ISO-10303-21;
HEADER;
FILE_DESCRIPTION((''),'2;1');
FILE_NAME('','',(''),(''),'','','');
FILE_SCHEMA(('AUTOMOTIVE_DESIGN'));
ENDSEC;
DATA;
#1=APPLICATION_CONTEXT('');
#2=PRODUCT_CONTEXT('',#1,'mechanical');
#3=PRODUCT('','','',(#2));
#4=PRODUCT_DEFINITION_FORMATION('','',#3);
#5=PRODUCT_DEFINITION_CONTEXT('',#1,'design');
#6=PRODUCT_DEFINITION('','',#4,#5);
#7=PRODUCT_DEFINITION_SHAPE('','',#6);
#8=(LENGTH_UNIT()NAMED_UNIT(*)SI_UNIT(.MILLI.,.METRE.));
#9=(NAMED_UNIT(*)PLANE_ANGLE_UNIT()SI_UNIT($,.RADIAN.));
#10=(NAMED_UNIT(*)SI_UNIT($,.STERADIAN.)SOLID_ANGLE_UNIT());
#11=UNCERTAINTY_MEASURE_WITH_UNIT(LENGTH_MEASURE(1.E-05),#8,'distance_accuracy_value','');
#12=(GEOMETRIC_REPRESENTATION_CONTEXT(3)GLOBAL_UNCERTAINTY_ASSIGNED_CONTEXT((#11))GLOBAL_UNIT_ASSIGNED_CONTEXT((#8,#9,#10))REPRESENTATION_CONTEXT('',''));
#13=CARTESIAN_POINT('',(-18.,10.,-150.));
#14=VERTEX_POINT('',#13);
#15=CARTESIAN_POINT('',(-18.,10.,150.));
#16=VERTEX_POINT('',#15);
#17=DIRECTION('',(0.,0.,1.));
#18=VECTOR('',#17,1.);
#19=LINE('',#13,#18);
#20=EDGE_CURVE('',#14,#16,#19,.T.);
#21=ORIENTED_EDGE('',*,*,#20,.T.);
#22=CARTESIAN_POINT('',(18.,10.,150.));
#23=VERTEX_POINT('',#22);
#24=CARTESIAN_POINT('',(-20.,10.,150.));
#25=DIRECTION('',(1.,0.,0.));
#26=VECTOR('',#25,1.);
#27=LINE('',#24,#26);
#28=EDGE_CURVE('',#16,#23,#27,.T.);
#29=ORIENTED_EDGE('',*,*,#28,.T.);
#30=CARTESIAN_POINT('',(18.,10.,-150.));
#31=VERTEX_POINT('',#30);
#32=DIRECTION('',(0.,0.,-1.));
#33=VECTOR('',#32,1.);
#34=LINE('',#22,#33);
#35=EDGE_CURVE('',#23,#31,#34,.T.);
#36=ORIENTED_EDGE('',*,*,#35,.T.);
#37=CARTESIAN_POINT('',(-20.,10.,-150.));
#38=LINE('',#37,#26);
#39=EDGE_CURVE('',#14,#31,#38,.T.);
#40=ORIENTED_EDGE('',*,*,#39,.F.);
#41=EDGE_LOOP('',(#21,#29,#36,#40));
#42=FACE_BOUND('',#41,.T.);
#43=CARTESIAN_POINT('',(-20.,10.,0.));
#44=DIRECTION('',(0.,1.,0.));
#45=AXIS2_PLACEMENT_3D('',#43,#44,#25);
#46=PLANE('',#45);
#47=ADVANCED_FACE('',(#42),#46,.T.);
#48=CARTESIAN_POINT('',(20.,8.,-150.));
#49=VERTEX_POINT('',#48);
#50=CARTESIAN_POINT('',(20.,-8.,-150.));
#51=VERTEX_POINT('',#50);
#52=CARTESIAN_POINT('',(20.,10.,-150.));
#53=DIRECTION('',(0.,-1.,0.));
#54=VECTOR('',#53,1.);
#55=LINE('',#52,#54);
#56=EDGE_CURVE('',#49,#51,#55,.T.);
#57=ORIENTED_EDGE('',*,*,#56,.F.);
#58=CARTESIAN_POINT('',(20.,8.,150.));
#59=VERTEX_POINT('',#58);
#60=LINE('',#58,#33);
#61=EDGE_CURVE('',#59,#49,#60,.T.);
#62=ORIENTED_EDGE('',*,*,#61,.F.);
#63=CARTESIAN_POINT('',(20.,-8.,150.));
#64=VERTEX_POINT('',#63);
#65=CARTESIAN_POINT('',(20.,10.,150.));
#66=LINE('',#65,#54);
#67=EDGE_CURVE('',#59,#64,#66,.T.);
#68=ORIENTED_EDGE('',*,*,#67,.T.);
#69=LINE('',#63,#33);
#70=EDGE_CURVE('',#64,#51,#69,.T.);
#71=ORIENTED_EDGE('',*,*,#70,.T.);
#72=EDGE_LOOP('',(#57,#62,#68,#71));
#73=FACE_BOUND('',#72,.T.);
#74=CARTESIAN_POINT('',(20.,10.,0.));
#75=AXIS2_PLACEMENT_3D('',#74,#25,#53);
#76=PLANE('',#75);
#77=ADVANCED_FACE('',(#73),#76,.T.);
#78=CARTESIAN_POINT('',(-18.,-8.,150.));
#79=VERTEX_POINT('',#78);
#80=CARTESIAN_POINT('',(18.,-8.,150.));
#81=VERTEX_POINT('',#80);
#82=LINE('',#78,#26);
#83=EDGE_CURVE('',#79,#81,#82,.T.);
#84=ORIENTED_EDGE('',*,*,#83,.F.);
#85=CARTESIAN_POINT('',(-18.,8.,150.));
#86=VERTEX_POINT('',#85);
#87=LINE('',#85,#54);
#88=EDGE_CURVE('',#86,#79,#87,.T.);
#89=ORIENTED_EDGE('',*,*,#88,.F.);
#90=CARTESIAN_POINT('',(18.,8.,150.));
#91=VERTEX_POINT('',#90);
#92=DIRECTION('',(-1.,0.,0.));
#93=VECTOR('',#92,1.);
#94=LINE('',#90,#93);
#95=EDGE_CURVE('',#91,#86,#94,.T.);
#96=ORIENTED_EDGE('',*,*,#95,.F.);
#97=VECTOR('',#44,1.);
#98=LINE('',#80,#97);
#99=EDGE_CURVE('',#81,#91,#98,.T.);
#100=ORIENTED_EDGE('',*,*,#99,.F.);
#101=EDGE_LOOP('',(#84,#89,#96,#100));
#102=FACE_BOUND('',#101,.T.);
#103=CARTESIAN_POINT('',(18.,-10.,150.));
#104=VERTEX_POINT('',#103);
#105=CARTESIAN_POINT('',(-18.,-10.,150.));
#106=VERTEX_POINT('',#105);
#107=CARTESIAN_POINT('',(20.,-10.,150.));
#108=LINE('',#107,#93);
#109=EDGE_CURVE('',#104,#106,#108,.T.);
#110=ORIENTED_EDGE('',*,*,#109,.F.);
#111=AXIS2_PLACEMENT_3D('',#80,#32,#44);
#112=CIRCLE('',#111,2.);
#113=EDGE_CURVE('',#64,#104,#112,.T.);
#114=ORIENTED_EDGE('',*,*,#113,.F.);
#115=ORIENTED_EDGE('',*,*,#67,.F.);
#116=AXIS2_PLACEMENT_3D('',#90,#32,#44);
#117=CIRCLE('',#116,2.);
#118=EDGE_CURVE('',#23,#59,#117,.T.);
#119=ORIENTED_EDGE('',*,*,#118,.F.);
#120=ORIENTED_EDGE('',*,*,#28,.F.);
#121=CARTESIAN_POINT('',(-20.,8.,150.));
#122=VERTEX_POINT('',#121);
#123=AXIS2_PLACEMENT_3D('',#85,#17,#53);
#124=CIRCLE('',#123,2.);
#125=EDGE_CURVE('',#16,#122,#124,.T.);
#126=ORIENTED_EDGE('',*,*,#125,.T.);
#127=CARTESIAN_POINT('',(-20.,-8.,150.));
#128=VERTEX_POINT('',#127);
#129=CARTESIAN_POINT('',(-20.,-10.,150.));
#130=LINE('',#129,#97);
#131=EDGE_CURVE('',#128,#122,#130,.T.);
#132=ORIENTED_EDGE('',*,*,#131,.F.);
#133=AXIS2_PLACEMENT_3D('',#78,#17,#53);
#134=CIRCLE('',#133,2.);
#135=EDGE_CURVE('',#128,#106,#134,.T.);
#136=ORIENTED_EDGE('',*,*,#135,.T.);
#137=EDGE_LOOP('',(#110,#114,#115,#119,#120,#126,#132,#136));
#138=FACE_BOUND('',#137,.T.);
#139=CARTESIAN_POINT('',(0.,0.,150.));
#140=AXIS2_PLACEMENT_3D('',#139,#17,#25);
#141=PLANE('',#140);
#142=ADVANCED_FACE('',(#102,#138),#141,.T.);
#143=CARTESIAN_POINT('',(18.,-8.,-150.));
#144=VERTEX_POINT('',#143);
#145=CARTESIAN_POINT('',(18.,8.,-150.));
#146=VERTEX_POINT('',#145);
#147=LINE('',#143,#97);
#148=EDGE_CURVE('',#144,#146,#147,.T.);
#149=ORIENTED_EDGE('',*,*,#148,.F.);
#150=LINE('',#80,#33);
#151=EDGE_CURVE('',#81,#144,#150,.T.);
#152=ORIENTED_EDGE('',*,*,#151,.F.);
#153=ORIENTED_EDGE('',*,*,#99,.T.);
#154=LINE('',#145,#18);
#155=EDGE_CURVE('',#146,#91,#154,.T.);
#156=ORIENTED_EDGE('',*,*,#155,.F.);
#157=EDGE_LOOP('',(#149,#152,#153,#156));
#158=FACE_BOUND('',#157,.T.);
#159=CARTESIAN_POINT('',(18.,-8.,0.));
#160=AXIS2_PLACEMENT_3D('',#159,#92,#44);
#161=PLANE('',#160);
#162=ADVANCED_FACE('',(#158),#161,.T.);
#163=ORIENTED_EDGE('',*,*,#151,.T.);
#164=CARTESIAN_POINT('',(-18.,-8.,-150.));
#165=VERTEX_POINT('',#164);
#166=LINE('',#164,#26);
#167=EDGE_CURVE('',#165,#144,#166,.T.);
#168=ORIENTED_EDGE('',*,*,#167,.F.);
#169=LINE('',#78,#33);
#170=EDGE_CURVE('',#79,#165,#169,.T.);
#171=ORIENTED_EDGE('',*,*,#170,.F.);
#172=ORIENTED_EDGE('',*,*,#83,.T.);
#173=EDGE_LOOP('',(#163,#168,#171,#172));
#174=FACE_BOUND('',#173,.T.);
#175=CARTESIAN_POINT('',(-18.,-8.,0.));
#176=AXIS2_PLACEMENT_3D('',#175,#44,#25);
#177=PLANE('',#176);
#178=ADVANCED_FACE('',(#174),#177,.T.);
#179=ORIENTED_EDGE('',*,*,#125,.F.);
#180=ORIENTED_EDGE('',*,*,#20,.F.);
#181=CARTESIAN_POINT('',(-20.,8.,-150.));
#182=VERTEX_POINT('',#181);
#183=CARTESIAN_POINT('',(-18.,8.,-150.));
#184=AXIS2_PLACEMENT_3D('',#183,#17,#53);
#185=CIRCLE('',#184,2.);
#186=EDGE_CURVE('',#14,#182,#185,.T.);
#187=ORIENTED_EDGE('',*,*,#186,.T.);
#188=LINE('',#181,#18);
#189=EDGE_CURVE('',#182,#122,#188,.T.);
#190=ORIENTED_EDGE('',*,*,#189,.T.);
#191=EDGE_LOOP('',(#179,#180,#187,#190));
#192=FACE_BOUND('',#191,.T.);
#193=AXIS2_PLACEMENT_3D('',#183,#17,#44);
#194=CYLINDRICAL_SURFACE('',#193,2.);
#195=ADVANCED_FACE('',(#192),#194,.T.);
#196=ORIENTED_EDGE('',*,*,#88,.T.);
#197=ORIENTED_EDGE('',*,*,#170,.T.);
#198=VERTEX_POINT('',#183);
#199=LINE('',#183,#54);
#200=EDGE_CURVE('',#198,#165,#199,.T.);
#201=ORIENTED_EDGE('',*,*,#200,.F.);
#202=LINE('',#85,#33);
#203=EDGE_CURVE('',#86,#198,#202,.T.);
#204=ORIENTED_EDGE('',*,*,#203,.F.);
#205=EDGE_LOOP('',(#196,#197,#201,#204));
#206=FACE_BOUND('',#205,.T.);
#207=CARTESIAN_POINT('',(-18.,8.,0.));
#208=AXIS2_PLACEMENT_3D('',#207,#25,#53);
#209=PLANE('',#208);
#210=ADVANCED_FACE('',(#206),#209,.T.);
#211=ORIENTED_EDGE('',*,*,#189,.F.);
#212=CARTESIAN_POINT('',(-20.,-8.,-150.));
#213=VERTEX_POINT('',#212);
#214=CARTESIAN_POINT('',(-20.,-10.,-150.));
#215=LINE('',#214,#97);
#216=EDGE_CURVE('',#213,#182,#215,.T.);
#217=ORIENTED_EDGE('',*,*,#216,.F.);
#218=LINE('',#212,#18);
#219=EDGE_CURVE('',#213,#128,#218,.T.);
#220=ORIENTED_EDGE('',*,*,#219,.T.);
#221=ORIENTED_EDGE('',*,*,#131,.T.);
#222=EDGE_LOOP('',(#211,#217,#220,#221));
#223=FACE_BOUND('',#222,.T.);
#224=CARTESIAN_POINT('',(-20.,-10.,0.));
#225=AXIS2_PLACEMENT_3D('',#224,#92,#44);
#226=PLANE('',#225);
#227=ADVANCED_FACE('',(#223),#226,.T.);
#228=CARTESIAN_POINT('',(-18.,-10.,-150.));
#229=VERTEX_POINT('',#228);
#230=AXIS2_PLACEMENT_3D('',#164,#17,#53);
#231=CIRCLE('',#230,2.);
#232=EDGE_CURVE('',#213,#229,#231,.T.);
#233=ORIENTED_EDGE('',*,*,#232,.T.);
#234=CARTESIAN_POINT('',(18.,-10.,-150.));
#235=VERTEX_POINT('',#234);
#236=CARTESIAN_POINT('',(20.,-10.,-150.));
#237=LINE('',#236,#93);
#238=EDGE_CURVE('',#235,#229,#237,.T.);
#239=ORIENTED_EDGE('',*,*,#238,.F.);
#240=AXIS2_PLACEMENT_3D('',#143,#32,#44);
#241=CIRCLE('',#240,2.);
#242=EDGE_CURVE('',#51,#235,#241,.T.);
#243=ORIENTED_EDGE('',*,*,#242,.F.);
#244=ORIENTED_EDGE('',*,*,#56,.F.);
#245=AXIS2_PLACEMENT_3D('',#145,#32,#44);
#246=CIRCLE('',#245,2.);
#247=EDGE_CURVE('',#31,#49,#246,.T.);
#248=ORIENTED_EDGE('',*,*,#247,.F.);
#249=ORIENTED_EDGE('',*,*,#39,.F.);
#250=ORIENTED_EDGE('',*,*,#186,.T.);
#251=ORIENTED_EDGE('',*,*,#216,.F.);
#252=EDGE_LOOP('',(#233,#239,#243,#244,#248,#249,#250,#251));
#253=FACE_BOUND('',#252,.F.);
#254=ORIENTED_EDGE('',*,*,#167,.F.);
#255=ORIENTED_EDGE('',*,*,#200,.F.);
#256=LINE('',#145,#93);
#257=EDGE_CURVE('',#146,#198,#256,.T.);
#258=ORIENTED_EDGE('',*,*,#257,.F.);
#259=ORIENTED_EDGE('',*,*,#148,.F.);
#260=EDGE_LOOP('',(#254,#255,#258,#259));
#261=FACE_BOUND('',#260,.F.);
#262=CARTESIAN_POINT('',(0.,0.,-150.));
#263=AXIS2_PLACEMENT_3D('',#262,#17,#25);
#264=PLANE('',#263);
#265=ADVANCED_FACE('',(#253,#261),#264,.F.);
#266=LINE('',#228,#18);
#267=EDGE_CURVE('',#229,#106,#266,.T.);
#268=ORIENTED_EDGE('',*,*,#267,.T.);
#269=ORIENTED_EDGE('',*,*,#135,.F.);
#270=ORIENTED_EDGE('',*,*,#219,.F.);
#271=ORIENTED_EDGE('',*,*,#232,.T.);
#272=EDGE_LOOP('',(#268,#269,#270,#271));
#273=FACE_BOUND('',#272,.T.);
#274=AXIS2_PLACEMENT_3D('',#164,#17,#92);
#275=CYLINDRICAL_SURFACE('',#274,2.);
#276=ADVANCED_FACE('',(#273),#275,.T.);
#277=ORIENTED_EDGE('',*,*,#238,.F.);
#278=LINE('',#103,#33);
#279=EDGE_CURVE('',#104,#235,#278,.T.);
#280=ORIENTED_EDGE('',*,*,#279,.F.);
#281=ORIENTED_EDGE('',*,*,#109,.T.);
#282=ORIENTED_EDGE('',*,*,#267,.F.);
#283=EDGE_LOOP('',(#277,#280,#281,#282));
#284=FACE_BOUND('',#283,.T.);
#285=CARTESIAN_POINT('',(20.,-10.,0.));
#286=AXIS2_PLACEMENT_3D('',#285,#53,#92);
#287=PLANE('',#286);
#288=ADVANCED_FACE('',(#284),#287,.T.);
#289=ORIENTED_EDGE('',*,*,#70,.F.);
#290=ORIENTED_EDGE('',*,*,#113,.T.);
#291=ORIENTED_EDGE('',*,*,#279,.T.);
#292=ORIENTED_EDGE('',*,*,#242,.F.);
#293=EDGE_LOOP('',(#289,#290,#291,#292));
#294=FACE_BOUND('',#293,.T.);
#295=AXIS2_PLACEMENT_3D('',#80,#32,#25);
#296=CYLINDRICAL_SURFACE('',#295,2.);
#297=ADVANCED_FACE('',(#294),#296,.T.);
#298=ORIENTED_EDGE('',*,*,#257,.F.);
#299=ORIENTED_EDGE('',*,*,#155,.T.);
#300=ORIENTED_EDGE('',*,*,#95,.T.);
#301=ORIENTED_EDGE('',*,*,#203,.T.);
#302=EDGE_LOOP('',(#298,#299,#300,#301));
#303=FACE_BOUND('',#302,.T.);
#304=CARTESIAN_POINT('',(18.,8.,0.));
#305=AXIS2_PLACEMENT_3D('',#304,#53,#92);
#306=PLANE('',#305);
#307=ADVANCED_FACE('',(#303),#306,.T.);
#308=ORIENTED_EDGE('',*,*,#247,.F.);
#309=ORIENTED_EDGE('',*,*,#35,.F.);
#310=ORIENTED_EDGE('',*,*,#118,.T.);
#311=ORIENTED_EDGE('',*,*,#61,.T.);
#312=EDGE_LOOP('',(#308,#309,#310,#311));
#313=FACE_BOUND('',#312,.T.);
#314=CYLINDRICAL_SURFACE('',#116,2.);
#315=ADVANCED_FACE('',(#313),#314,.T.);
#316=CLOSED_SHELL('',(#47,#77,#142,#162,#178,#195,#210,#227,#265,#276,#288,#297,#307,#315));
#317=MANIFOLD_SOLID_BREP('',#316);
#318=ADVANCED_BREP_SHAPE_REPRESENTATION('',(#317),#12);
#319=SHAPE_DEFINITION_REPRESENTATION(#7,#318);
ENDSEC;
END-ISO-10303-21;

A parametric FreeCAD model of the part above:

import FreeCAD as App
import Part
import Sketcher

V = App.Vector
Q = App.Units.Quantity


def edges_at(feature, points):
    """Names of the edges that pass closest to the given points."""
    edges = feature.Shape.Edges
    near = lambda p: min(range(len(edges)), key=lambda i: edges[i].distToShape(Part.Vertex(*p))[0])
    return sorted({f"Edge{near(p) + 1}" for p in points})

doc = App.newDocument("Part")
body = doc.addObject("PartDesign::Body", "Body")

# Sketch on XY plane
sketch1 = body.newObject("Sketcher::SketchObject", "Sketch")
sketch1.AttachmentSupport = (doc.getObject("XY_Plane"), [""])
sketch1.MapMode = "FlatFace"
sketch1.addGeometry([
    Part.LineSegment(V(20, 10, 0), V(-20, 10, 0)),  # 0
    Part.LineSegment(V(-20, 10, 0), V(-20, -10, 0)),  # 1
    Part.LineSegment(V(-20, -10, 0), V(20, -10, 0)),  # 2
    Part.LineSegment(V(20, -10, 0), V(20, 10, 0)),  # 3
    Part.LineSegment(V(-18, 8, 0), V(18, 8, 0)),  # 4
    Part.LineSegment(V(18, 8, 0), V(18, -8, 0)),  # 5
    Part.LineSegment(V(18, -8, 0), V(-18, -8, 0)),  # 6
    Part.LineSegment(V(-18, -8, 0), V(-18, 8, 0)),  # 7
], False)
sketch1.addConstraint([
    Sketcher.Constraint("Coincident", 0, 2, 1, 1),
    Sketcher.Constraint("Coincident", 1, 2, 2, 1),
    Sketcher.Constraint("Coincident", 2, 2, 3, 1),
    Sketcher.Constraint("Coincident", 3, 2, 0, 1),
    Sketcher.Constraint("Coincident", 4, 2, 5, 1),
    Sketcher.Constraint("Coincident", 5, 2, 6, 1),
    Sketcher.Constraint("Coincident", 6, 2, 7, 1),
    Sketcher.Constraint("Coincident", 7, 2, 4, 1),
    Sketcher.Constraint("Horizontal", 0),
    Sketcher.Constraint("Vertical", 1),
    Sketcher.Constraint("Horizontal", 2),
    Sketcher.Constraint("Vertical", 3),
    Sketcher.Constraint("Horizontal", 4),
    Sketcher.Constraint("Vertical", 5),
    Sketcher.Constraint("Horizontal", 6),
    Sketcher.Constraint("Vertical", 7),
    Sketcher.Constraint("Symmetric", 0, 2, 2, 2, -1, 1),
    Sketcher.Constraint("Symmetric", 4, 2, 6, 2, -1, 1),
    Sketcher.Constraint("DistanceX", 0, 2, 0, 1, Q("40 mm")),
    Sketcher.Constraint("DistanceY", 1, 2, 1, 1, Q("20 mm")),
    Sketcher.Constraint("DistanceX", 4, 2, 3, 2, Q("2 mm")),
    Sketcher.Constraint("DistanceY", 4, 2, 3, 2, Q("2 mm")),
])
pad1 = body.newObject("PartDesign::Pad", "Pad")
pad1.Profile = sketch1
pad1.Length = 300
pad1.Midplane = True
doc.recompute()

fillet = body.newObject("PartDesign::Fillet", "Fillet")
fillet.Base = (pad1, edges_at(pad1, [
    (-20, 10, 0),
    (-20, -10, 0),
    (20, -10, 0),
    (20, 10, 0),
]))
fillet.Radius = 2

doc.recompute()
